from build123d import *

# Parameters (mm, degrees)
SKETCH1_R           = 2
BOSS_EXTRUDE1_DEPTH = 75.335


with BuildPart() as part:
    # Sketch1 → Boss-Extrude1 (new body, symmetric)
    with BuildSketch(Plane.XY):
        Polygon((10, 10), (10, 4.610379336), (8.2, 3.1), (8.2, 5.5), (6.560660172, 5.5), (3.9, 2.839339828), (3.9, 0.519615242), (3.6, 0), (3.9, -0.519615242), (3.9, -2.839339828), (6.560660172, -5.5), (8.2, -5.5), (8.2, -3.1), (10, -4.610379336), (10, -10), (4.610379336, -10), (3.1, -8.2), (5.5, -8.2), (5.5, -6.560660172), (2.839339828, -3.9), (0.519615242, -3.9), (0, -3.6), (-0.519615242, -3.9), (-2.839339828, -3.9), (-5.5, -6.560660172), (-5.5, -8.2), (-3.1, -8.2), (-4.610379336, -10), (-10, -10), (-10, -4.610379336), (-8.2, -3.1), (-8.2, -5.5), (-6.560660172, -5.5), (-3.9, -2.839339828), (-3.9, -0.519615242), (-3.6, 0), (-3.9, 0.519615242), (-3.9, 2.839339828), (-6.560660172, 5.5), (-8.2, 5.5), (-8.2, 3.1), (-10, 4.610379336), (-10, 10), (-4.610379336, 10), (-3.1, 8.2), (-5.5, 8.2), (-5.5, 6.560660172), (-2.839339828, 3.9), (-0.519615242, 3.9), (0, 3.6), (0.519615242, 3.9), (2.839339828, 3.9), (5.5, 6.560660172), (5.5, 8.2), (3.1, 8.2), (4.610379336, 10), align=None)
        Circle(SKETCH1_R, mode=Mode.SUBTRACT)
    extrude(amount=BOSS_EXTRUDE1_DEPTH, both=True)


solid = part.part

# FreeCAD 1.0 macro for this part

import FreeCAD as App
import Part
import Sketcher
Q = App.Units.Quantity


def add_polygon(sketch, points):
    """Adds a closed chain of lines whose ends are joined by coincident constraints."""
    first, n = sketch.GeometryCount, len(points)
    for a, b in zip(points, points[1:] + points[:1]):
        sketch.addGeometry(Part.LineSegment(App.Vector(*a, 0), App.Vector(*b, 0)), False)
    for i in range(n):
        sketch.addConstraint(Sketcher.Constraint("Coincident", first + i, 2, first + (i + 1) % n, 1))

doc = App.newDocument("Part")
params = doc.addObject("Spreadsheet::Sheet", "Params")
for row, (alias, value) in enumerate([
    ("sketch1_diameter", "4 mm"),
    ("sketch1_width", "2.4 mm"),
    ("sketch1_length", "0.6 mm"),
    ("pad1_length", "150.67 mm"),
], start=1):
    params.set(f"A{row}", alias)
    params.set(f"B{row}", "=" + value)
    params.setAlias(f"B{row}", alias)

body = doc.addObject("PartDesign::Body", "Body")

sketch1 = body.newObject("Sketcher::SketchObject", "Sketch")
sketch1.AttachmentSupport = (doc.getObject("XY_Plane"), [""])
sketch1.MapMode = "FlatFace"
add_polygon(sketch1, [(10, 4.6), (10, 10), (4.6, 10), (3.1, 8.2), (5.5, 8.2), (5.5, 6.6), (2.8, 3.9), (0.5, 3.9), (0, 3.6), (-0.5, 3.9), (-2.8, 3.9), (-5.5, 6.6), (-5.5, 8.2), (-3.1, 8.2), (-4.6, 10), (-10, 10), (-10, 4.6), (-8.2, 3.1), (-8.2, 5.5), (-6.6, 5.5), (-3.9, 2.8), (-3.9, 0.5), (-3.6, 0), (-3.9, -0.5), (-3.9, -2.8), (-6.6, -5.5), (-8.2, -5.5), (-8.2, -3.1), (-10, -4.6), (-10, -10), (-4.6, -10), (-3.1, -8.2), (-5.5, -8.2), (-5.5, -6.6), (-2.8, -3.9), (-0.5, -3.9), (0, -3.6), (0.5, -3.9), (2.8, -3.9), (5.5, -6.6), (5.5, -8.2), (3.1, -8.2), (4.6, -10), (10, -10), (10, -4.6), (8.2, -3.1), (8.2, -5.5), (6.6, -5.5), (3.9, -2.8), (3.9, -0.5), (3.6, 0), (3.9, 0.5), (3.9, 2.8), (6.6, 5.5), (8.2, 5.5), (8.2, 3.1)])
sketch1.addGeometry(Part.Circle(App.Vector(0, 0, 0), App.Vector(0, 0, 1), 2), False)
sketch1.addConstraint(Sketcher.Constraint("Vertical", 0))
sketch1.addConstraint(Sketcher.Constraint("Horizontal", 1))
sketch1.addConstraint(Sketcher.Constraint("Horizontal", 3))
sketch1.addConstraint(Sketcher.Constraint("Vertical", 4))
sketch1.addConstraint(Sketcher.Constraint("Horizontal", 6))
sketch1.addConstraint(Sketcher.Constraint("Horizontal", 9))
sketch1.addConstraint(Sketcher.Constraint("Vertical", 11))
sketch1.addConstraint(Sketcher.Constraint("Horizontal", 12))
sketch1.addConstraint(Sketcher.Constraint("Horizontal", 14))
sketch1.addConstraint(Sketcher.Constraint("Vertical", 15))
sketch1.addConstraint(Sketcher.Constraint("Vertical", 17))
sketch1.addConstraint(Sketcher.Constraint("Horizontal", 18))
sketch1.addConstraint(Sketcher.Constraint("Vertical", 20))
sketch1.addConstraint(Sketcher.Constraint("Vertical", 23))
sketch1.addConstraint(Sketcher.Constraint("Horizontal", 25))
sketch1.addConstraint(Sketcher.Constraint("Vertical", 26))
sketch1.addConstraint(Sketcher.Constraint("Vertical", 28))
sketch1.addConstraint(Sketcher.Constraint("Horizontal", 29))
sketch1.addConstraint(Sketcher.Constraint("Horizontal", 31))
sketch1.addConstraint(Sketcher.Constraint("Vertical", 32))
sketch1.addConstraint(Sketcher.Constraint("Horizontal", 34))
sketch1.addConstraint(Sketcher.Constraint("Horizontal", 37))
sketch1.addConstraint(Sketcher.Constraint("Vertical", 39))
sketch1.addConstraint(Sketcher.Constraint("Horizontal", 40))
sketch1.addConstraint(Sketcher.Constraint("Horizontal", 42))
sketch1.addConstraint(Sketcher.Constraint("Vertical", 43))
sketch1.addConstraint(Sketcher.Constraint("Vertical", 45))
sketch1.addConstraint(Sketcher.Constraint("Horizontal", 46))
sketch1.addConstraint(Sketcher.Constraint("Vertical", 48))
sketch1.addConstraint(Sketcher.Constraint("Vertical", 51))
sketch1.addConstraint(Sketcher.Constraint("Horizontal", 53))
sketch1.addConstraint(Sketcher.Constraint("Vertical", 54))
sketch1.addConstraint(Sketcher.Constraint("Coincident", 56, 3, -1, 1))
sketch1.addConstraint(Sketcher.Constraint("Symmetric", 0, 2, 28, 2, -1, 1))
sketch1.addConstraint(Sketcher.Constraint("Symmetric", 2, 2, 30, 2, -1, 1))
sketch1.addConstraint(Sketcher.Constraint("Symmetric", 4, 2, 32, 2, -1, 1))
sketch1.addConstraint(Sketcher.Constraint("Symmetric", 5, 2, 33, 2, -1, 1))
sketch1.addConstraint(Sketcher.Constraint("Symmetric", 7, 2, 35, 2, -1, 1))
sketch1.addConstraint(Sketcher.Constraint("Symmetric", 8, 2, 36, 2, -1, 1))
sketch1.addConstraint(Sketcher.Constraint("Symmetric", 10, 2, 38, 2, -1, 1))
sketch1.addConstraint(Sketcher.Constraint("Symmetric", 12, 2, 40, 2, -1, 1))
sketch1.addConstraint(Sketcher.Constraint("Symmetric", 13, 2, 41, 2, -1, 1))
sketch1.addConstraint(Sketcher.Constraint("Symmetric", 15, 2, 43, 2, -1, 1))
sketch1.addConstraint(Sketcher.Constraint("Symmetric", 16, 2, 44, 2, -1, 1))
sketch1.addConstraint(Sketcher.Constraint("Symmetric", 18, 2, 46, 2, -1, 1))
sketch1.addConstraint(Sketcher.Constraint("Symmetric", 19, 2, 47, 2, -1, 1))
sketch1.addConstraint(Sketcher.Constraint("Symmetric", 21, 2, 49, 2, -1, 1))
sketch1.addConstraint(Sketcher.Constraint("Symmetric", 22, 2, 50, 2, -1, 1))
sketch1.addConstraint(Sketcher.Constraint("Symmetric", 24, 2, 52, 2, -1, 1))
sketch1.addConstraint(Sketcher.Constraint("Symmetric", 26, 2, 54, 2, -1, 1))
sketch1.addConstraint(Sketcher.Constraint("Symmetric", 6, 2, 8, 2, -2))
sketch1.addConstraint(Sketcher.Constraint("Symmetric", 4, 2, 10, 2, -2))
sketch1.addConstraint(Sketcher.Constraint("Symmetric", 2, 2, 12, 2, -2))
sketch1.addConstraint(Sketcher.Constraint("Symmetric", 1, 2, 13, 2, -2))
sketch1.addConstraint(Sketcher.Constraint("Symmetric", 27, 2, 43, 2, -2))
sketch1.addConstraint(Sketcher.Constraint("Symmetric", 26, 2, 44, 2, -2))
sketch1.addConstraint(Sketcher.Constraint("Symmetric", 24, 2, 46, 2, -2))
sketch1.addConstraint(Sketcher.Constraint("Symmetric", 23, 2, 47, 2, -2))
sketch1.addConstraint(Sketcher.Constraint("PointOnObject", 7, 2, -2))
sketch1.addConstraint(Sketcher.Constraint("PointOnObject", 21, 2, -1))
sketch1.addConstraint(Sketcher.Constraint("Perpendicular", 5, 10))
sketch1.addConstraint(Sketcher.Constraint("Perpendicular", 2, 16))
sketch1.addConstraint(Sketcher.Constraint("Parallel", 10, 19))
sketch1.addConstraint(Sketcher.Constraint("Perpendicular", 7, 21))
sketch1.addConstraint(Sketcher.Constraint("Perpendicular", 8, 22))
sketch1.addConstraint(Sketcher.Constraint("Perpendicular", 19, 24))
sketch1.addConstraint(Sketcher.Constraint("Perpendicular", 16, 30))
sketch1.addConstraint(Sketcher.Constraint("Perpendicular", 21, 35))
sketch1.addConstraint(Sketcher.Constraint("Perpendicular", 33, 38))
sketch1.addConstraint(Sketcher.Constraint("Perpendicular", 35, 49))
sketch1.addConstraint(Sketcher.Constraint("Perpendicular", 47, 52))
sketch1.addConstraint(Sketcher.Constraint("Perpendicular", 41, 55))
sketch1.addConstraint(Sketcher.Constraint("Equal", 42, 0))
sketch1.addConstraint(Sketcher.Constraint("Equal", 53, 4))
sketch1.addConstraint(Sketcher.Constraint("Equal", 40, 17))
sketch1.addConstraint(Sketcher.Constraint("Equal", 37, 20))
sketch1.addConstraint(Sketcher.Constraint("Equal", 13, 16))
sketch1.addConstraint(Sketcher.Constraint("Equal", 10, 19))
sketch1.addConstraint(Sketcher.Constraint("Equal", 8, 21))
sketch1.addConstraint(Sketcher.Constraint("Diameter", 56, Q("4 mm")))
sketch1.addConstraint(Sketcher.Constraint("Angle", 2, Q("-130 deg")))
sketch1.addConstraint(Sketcher.Constraint("Angle", 7, Q("-150 deg")))
sketch1.addConstraint(Sketcher.Constraint("DistanceX", 3, 1, 3, 2, Q("2.4 mm")))
sketch1.addConstraint(Sketcher.Constraint("DistanceX", -1, 1, 0, 2, Q("10 mm")))
sketch1.addConstraint(Sketcher.Constraint("Distance", 7, Q("0.6 mm")))
sketch1.addConstraint(Sketcher.Constraint("DistanceX", -1, 1, 2, 2, Q("3.1 mm")))
sketch1.addConstraint(Sketcher.Constraint("DistanceY", -1, 1, 2, 2, Q("8.2 mm")))
sketch1.addConstraint(Sketcher.Constraint("DistanceY", -1, 1, 5, 2, Q("3.9 mm")))
sketch1.addConstraint(Sketcher.Constraint("DistanceX", 18, 1, 18, 2, Q("1.63934 mm")))
sketch1.setExpression("Constraints[135]", "Params.sketch1_diameter")
sketch1.setExpression("Constraints[138]", "Params.sketch1_width")
sketch1.setExpression("Constraints[140]", "Params.sketch1_length")
pad1 = body.newObject("PartDesign::Pad", "Pad")
pad1.Profile = sketch1
pad1.setExpression("Length", "Params.pad1_length")
pad1.Midplane = True

doc.recompute()
